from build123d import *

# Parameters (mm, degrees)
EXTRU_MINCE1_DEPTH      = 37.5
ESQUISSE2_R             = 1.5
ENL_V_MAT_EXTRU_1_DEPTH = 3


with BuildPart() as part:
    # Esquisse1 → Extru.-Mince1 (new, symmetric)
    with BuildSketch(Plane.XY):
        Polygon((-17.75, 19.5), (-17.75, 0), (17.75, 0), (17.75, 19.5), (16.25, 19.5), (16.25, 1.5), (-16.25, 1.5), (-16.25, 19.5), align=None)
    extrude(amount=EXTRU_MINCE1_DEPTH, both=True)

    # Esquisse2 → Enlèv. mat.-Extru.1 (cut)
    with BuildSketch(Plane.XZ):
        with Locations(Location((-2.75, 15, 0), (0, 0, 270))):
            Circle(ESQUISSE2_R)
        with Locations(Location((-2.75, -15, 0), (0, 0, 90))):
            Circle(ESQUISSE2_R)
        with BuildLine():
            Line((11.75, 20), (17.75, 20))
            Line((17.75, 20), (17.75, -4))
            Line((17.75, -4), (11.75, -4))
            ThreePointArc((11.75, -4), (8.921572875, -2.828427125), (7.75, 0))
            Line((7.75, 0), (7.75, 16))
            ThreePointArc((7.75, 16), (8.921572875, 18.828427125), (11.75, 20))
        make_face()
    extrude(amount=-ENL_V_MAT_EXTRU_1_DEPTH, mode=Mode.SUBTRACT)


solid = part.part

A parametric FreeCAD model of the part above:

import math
import FreeCAD as App
import Part
import Sketcher

V = App.Vector


def add_polygon(sketch, points):
    """Adds a closed chain of lines whose ends are joined by coincident constraints."""
    first, n = sketch.GeometryCount, len(points)
    for a, b in zip(points, points[1:] + points[:1]):
        sketch.addGeometry(Part.LineSegment(App.Vector(*a, 0), App.Vector(*b, 0)), False)
    for i in range(n):
        sketch.addConstraint(Sketcher.Constraint("Coincident", first + i, 2, first + (i + 1) % n, 1))

doc = App.newDocument("Part")
body = doc.addObject("PartDesign::Body", "Body")

sketch1 = body.newObject("Sketcher::SketchObject", "Sketch")
sketch1.AttachmentSupport = (doc.getObject("XY_Plane"), [""])
sketch1.MapMode = "FlatFace"
add_polygon(sketch1, [(-17.8, 19.5), (-17.8, 0), (17.8, 0), (17.8, 19.5), (16.2, 19.5), (16.2, 1.5), (-16.2, 1.5), (-16.2, 19.5)])
sketch1.addConstraint([
    Sketcher.Constraint("Vertical", 0),
    Sketcher.Constraint("Horizontal", 1),
    Sketcher.Constraint("Vertical", 2),
    Sketcher.Constraint("Horizontal", 3),
    Sketcher.Constraint("Vertical", 4),
    Sketcher.Constraint("Horizontal", 5),
    Sketcher.Constraint("Vertical", 6),
    Sketcher.Constraint("Horizontal", 7),
    Sketcher.Constraint("Symmetric", 0, 2, 1, 2, -1, 1),
    Sketcher.Constraint("Symmetric", 3, 2, 6, 2, -2),
    Sketcher.Constraint("DistanceY", 4, 2, 4, 1, 18.0),
    Sketcher.Constraint("DistanceX", 1, 1, 1, 2, 35.5),
    Sketcher.Constraint("DistanceX", 3, 2, 3, 1, 1.5),
    Sketcher.Constraint("DistanceY", 0, 2, 0, 1, 19.5),
])
pad1 = body.newObject("PartDesign::Pad", "Pad")
pad1.Profile = sketch1
pad1.Length = 75
pad1.Midplane = True

sketch2 = body.newObject("Sketcher::SketchObject", "Sketch001")
sketch2.AttachmentSupport = (doc.getObject("XZ_Plane"), [""])
sketch2.MapMode = "FlatFace"
sketch2.addGeometry([
    Part.Circle(V(-2.8, 15, 0), V(0, 0, 1), 1.5),
    Part.Circle(V(-2.8, -15, 0), V(0, 0, 1), 1.5),
    Part.LineSegment(V(17.8, 20, 0), V(11.8, 20, 0)),
    Part.ArcOfCircle(Part.Circle(V(11.7, 16, 0), V(0, 0, 1), 4), math.radians(90), math.radians(180)),
    Part.LineSegment(V(7.8, 16, 0), V(7.8, 0, 0)),
    Part.ArcOfCircle(Part.Circle(V(11.7, 0, 0), V(0, 0, 1), 4), math.radians(180), math.radians(270)),
    Part.LineSegment(V(11.8, -4, 0), V(17.8, -4, 0)),
    Part.LineSegment(V(17.8, -4, 0), V(17.8, 20, 0)),
], False)
sketch2.addConstraint([
    Sketcher.Constraint("Tangent", 2, 2, 3, 1),
    Sketcher.Constraint("Tangent", 3, 2, 4, 1),
    Sketcher.Constraint("Tangent", 4, 2, 5, 1),
    Sketcher.Constraint("Tangent", 5, 2, 6, 1),
    Sketcher.Constraint("Coincident", 6, 2, 7, 1),
    Sketcher.Constraint("Coincident", 7, 2, 2, 1),
    Sketcher.Constraint("Horizontal", 2),
    Sketcher.Constraint("Vertical", 4),
    Sketcher.Constraint("Horizontal", 6),
    Sketcher.Constraint("Vertical", 7),
    Sketcher.Constraint("Equal", 0, 1),
    Sketcher.Constraint("Equal", 3, 5),
    Sketcher.Constraint("Symmetric", 0, 3, 1, 3, -1),
    Sketcher.Constraint("PointOnObject", 5, 3, -1),
    Sketcher.Constraint("Diameter", 0, 3.0),
    Sketcher.Constraint("Radius", 3, 4.0),
    Sketcher.Constraint("DistanceX", 2, 2, 2, 1, 6.0),
    Sketcher.Constraint("DistanceY", 4, 2, 4, 1, 16.0),
    Sketcher.Constraint("DistanceY", -1, 1, 0, 3, 15.0),
    Sketcher.Constraint("DistanceX", 0, 3, 3, 3, 14.5),
    Sketcher.Constraint("DistanceX", 0, 3, -1, 1, 2.75),
])
pocket1 = body.newObject("PartDesign::Pocket", "Pocket")
pocket1.Profile = sketch2
pocket1.Length = 3

doc.recompute()
